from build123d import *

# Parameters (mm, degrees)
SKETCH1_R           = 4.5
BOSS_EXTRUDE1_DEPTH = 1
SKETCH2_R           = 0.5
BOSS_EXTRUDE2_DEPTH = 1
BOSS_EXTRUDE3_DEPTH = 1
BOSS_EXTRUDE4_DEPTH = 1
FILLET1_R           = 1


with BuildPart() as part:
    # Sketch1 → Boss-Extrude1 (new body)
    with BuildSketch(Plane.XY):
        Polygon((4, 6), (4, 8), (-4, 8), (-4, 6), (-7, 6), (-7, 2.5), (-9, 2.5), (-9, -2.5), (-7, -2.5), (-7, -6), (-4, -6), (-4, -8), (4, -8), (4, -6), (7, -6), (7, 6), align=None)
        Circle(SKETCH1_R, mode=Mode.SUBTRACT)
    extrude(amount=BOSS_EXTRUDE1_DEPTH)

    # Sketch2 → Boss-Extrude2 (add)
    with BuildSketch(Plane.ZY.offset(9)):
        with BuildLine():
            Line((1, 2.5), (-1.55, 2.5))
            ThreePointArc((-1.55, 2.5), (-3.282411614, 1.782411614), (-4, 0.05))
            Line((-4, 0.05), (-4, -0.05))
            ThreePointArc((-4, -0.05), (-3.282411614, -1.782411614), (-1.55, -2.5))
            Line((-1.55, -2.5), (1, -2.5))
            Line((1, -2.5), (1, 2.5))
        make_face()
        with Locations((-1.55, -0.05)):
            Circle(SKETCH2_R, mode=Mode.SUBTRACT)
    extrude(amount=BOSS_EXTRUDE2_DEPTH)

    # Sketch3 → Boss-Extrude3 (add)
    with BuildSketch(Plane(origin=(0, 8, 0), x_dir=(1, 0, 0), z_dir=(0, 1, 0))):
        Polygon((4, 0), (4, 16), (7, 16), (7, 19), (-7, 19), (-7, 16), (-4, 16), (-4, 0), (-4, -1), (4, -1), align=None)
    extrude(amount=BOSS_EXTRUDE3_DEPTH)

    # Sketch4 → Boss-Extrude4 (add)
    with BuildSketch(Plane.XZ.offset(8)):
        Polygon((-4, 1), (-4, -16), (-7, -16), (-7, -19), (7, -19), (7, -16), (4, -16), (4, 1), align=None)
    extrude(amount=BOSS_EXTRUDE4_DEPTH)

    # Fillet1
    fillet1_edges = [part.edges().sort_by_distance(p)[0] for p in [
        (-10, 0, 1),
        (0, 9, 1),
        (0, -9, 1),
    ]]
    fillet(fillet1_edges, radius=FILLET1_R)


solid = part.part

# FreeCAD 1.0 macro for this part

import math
import FreeCAD as App
import Part
import Sketcher


def edges_at(feature, points):
    """Names of the edges that pass closest to the given points."""
    edges = feature.Shape.Edges
    near = lambda p: min(range(len(edges)), key=lambda i: edges[i].distToShape(Part.Vertex(*p))[0])
    return sorted({f"Edge{near(p) + 1}" for p in points})


def add_polygon(sketch, points):
    """Adds a closed chain of lines whose ends are joined by coincident constraints."""
    first, n = sketch.GeometryCount, len(points)
    for a, b in zip(points, points[1:] + points[:1]):
        sketch.addGeometry(Part.LineSegment(App.Vector(*a, 0), App.Vector(*b, 0)), False)
    for i in range(n):
        sketch.addConstraint(Sketcher.Constraint("Coincident", first + i, 2, first + (i + 1) % n, 1))

doc = App.newDocument("Part")
body = doc.addObject("PartDesign::Body", "Body")

sketch1 = body.newObject("Sketcher::SketchObject", "Sketch")
sketch1.AttachmentSupport = (doc.getObject("XY_Plane"), [""])
sketch1.MapMode = "FlatFace"
add_polygon(sketch1, [(4, 6), (4, 8), (-4, 8), (-4, 6), (-7, 6), (-7, 2.5), (-9, 2.5), (-9, -2.5), (-7, -2.5), (-7, -6), (-4, -6), (-4, -8), (4, -8), (4, -6), (7, -6), (7, 6)])
sketch1.addGeometry(Part.Circle(App.Vector(0, 0, 0), App.Vector(0, 0, 1), 4.5), False)
sketch1.addConstraint([
    Sketcher.Constraint("Vertical", 0),
    Sketcher.Constraint("Horizontal", 1),
    Sketcher.Constraint("Vertical", 2),
    Sketcher.Constraint("Horizontal", 3),
    Sketcher.Constraint("Vertical", 4),
    Sketcher.Constraint("Horizontal", 5),
    Sketcher.Constraint("Vertical", 6),
    Sketcher.Constraint("Horizontal", 7),
    Sketcher.Constraint("Vertical", 8),
    Sketcher.Constraint("Horizontal", 9),
    Sketcher.Constraint("Vertical", 10),
    Sketcher.Constraint("Horizontal", 11),
    Sketcher.Constraint("Vertical", 12),
    Sketcher.Constraint("Horizontal", 13),
    Sketcher.Constraint("Vertical", 14),
    Sketcher.Constraint("Horizontal", 15),
    Sketcher.Constraint("Coincident", 16, 3, -1, 1),
    Sketcher.Constraint("Symmetric", 0, 2, 10, 2, -1, 1),
    Sketcher.Constraint("Symmetric", 2, 2, 12, 2, -1, 1),
    Sketcher.Constraint("Symmetric", 8, 2, 14, 2, -1, 1),
    Sketcher.Constraint("Symmetric", 9, 2, 12, 2, -2),
    Sketcher.Constraint("Symmetric", 4, 2, 7, 2, -1),
    Sketcher.Constraint("Equal", 7, 0),
    Sketcher.Constraint("Diameter", 16, 9.0),
    Sketcher.Constraint("DistanceX", 1, 2, 1, 1, 8.0),
    Sketcher.Constraint("DistanceX", 3, 2, 3, 1, 3.0),
    Sketcher.Constraint("DistanceX", 5, 2, 5, 1, 2.0),
    Sketcher.Constraint("DistanceY", 6, 2, 6, 1, 5.0),
    Sketcher.Constraint("DistanceY", 14, 1, 14, 2, 12.0),
])
pad1 = body.newObject("PartDesign::Pad", "Pad")
pad1.Profile = sketch1
pad1.Length = 1

sketch2 = body.newObject("Sketcher::SketchObject", "Sketch001")
sketch2.AttachmentSupport = (doc.getObject("YZ_Plane"), [""])
sketch2.MapMode = "FlatFace"
sketch2.AttachmentOffset = App.Placement(App.Vector(0, 0, -9), App.Rotation())
sketch2.addGeometry([
    Part.LineSegment(App.Vector(2.5, 1, 0), App.Vector(2.5, -1.55, 0)),
    Part.ArcOfCircle(Part.Circle(App.Vector(0.05, -1.55, 0), App.Vector(0, 0, 1), 2.45), math.radians(-90), math.radians(0)),
    Part.LineSegment(App.Vector(0.05, -4, 0), App.Vector(-0.05, -4, 0)),
    Part.ArcOfCircle(Part.Circle(App.Vector(-0.05, -1.55, 0), App.Vector(0, 0, 1), 2.45), math.radians(180), math.radians(270)),
    Part.LineSegment(App.Vector(-2.5, -1.55, 0), App.Vector(-2.5, 1, 0)),
    Part.LineSegment(App.Vector(-2.5, 1, 0), App.Vector(2.5, 1, 0)),
    Part.Circle(App.Vector(-0.05, -1.55, 0), App.Vector(0, 0, 1), 0.5),
], False)
sketch2.addConstraint([
    Sketcher.Constraint("Tangent", 0, 2, 1, 2),
    Sketcher.Constraint("Tangent", 1, 1, 2, 1),
    Sketcher.Constraint("Tangent", 2, 2, 3, 2),
    Sketcher.Constraint("Tangent", 3, 1, 4, 1),
    Sketcher.Constraint("Coincident", 4, 2, 5, 1),
    Sketcher.Constraint("Coincident", 5, 2, 0, 1),
    Sketcher.Constraint("Vertical", 0),
    Sketcher.Constraint("Horizontal", 2),
    Sketcher.Constraint("Vertical", 4),
    Sketcher.Constraint("Horizontal", 5),
    Sketcher.Constraint("Coincident", 6, 3, 3, 3),
    Sketcher.Constraint("Equal", 1, 3),
    Sketcher.Constraint("Diameter", 6, 1.0),
    Sketcher.Constraint("DistanceX", 5, 1, 5, 2, 5.0),
    Sketcher.Constraint("Radius", 1, 2.45),
    Sketcher.Constraint("DistanceY", 1, 1, -1, 1, 4.0),
    Sketcher.Constraint("DistanceY", -1, 1, 4, 2, 1.0),
    Sketcher.Constraint("DistanceX", -1, 1, 0, 2, 2.5),
])
pad2 = body.newObject("PartDesign::Pad", "Pad001")
pad2.Profile = sketch2
pad2.Length = 1
pad2.Reversed = True

sketch3 = body.newObject("Sketcher::SketchObject", "Sketch002")
sketch3.AttachmentSupport = (doc.getObject("XZ_Plane"), [""])
sketch3.MapMode = "FlatFace"
sketch3.AttachmentOffset = App.Placement(App.Vector(0, 0, -8), App.Rotation())
add_polygon(sketch3, [(4, -16), (7, -16), (7, -19), (-7, -19), (-7, -16), (-4, -16), (-4, 1), (4, 1)])
sketch3.addConstraint([
    Sketcher.Constraint("Horizontal", 0),
    Sketcher.Constraint("Vertical", 1),
    Sketcher.Constraint("Horizontal", 2),
    Sketcher.Constraint("Vertical", 3),
    Sketcher.Constraint("Horizontal", 4),
    Sketcher.Constraint("Vertical", 5),
    Sketcher.Constraint("Horizontal", 6),
    Sketcher.Constraint("Vertical", 7),
    Sketcher.Constraint("Symmetric", 0, 2, 3, 2, -2),
    Sketcher.Constraint("Equal", 0, 4),
    Sketcher.Constraint("Equal", 4, 1),
    Sketcher.Constraint("DistanceX", 0, 1, 0, 2, 3.0),
    Sketcher.Constraint("DistanceX", 2, 2, 2, 1, 14.0),
    Sketcher.Constraint("DistanceY", 5, 1, 5, 2, 17.0),
    Sketcher.Constraint("DistanceY", 0, 2, -1, 1, 16.0),
])
pad3 = body.newObject("PartDesign::Pad", "Pad002")
pad3.Profile = sketch3
pad3.Length = 1
pad3.Reversed = True

sketch4 = body.newObject("Sketcher::SketchObject", "Sketch003")
sketch4.AttachmentSupport = (doc.getObject("XZ_Plane"), [""])
sketch4.MapMode = "FlatFace"
sketch4.AttachmentOffset = App.Placement(App.Vector(0, 0, 8), App.Rotation())
add_polygon(sketch4, [(-4, 1), (-4, -16), (-7, -16), (-7, -19), (7, -19), (7, -16), (4, -16), (4, 1)])
sketch4.addConstraint([
    Sketcher.Constraint("Vertical", 0),
    Sketcher.Constraint("Horizontal", 1),
    Sketcher.Constraint("Vertical", 2),
    Sketcher.Constraint("Horizontal", 3),
    Sketcher.Constraint("Vertical", 4),
    Sketcher.Constraint("Horizontal", 5),
    Sketcher.Constraint("Vertical", 6),
    Sketcher.Constraint("Horizontal", 7),
    Sketcher.Constraint("Symmetric", 1, 2, 4, 2, -2),
    Sketcher.Constraint("Equal", 1, 5),
    Sketcher.Constraint("Equal", 5, 2),
    Sketcher.Constraint("DistanceX", 1, 2, 1, 1, 3.0),
    Sketcher.Constraint("DistanceX", 3, 1, 3, 2, 14.0),
    Sketcher.Constraint("DistanceY", 0, 2, 0, 1, 17.0),
    Sketcher.Constraint("DistanceY", 0, 2, -1, 1, 16.0),
])
pad4 = body.newObject("PartDesign::Pad", "Pad003")
pad4.Profile = sketch4
pad4.Length = 1
doc.recompute()

fillet = body.newObject("PartDesign::Fillet", "Fillet")
fillet.Base = (pad4, edges_at(pad4, [(-10, 0, 1), (0, 9, 1), (0, -9, 1)]))
fillet.Radius = 1

doc.recompute()
